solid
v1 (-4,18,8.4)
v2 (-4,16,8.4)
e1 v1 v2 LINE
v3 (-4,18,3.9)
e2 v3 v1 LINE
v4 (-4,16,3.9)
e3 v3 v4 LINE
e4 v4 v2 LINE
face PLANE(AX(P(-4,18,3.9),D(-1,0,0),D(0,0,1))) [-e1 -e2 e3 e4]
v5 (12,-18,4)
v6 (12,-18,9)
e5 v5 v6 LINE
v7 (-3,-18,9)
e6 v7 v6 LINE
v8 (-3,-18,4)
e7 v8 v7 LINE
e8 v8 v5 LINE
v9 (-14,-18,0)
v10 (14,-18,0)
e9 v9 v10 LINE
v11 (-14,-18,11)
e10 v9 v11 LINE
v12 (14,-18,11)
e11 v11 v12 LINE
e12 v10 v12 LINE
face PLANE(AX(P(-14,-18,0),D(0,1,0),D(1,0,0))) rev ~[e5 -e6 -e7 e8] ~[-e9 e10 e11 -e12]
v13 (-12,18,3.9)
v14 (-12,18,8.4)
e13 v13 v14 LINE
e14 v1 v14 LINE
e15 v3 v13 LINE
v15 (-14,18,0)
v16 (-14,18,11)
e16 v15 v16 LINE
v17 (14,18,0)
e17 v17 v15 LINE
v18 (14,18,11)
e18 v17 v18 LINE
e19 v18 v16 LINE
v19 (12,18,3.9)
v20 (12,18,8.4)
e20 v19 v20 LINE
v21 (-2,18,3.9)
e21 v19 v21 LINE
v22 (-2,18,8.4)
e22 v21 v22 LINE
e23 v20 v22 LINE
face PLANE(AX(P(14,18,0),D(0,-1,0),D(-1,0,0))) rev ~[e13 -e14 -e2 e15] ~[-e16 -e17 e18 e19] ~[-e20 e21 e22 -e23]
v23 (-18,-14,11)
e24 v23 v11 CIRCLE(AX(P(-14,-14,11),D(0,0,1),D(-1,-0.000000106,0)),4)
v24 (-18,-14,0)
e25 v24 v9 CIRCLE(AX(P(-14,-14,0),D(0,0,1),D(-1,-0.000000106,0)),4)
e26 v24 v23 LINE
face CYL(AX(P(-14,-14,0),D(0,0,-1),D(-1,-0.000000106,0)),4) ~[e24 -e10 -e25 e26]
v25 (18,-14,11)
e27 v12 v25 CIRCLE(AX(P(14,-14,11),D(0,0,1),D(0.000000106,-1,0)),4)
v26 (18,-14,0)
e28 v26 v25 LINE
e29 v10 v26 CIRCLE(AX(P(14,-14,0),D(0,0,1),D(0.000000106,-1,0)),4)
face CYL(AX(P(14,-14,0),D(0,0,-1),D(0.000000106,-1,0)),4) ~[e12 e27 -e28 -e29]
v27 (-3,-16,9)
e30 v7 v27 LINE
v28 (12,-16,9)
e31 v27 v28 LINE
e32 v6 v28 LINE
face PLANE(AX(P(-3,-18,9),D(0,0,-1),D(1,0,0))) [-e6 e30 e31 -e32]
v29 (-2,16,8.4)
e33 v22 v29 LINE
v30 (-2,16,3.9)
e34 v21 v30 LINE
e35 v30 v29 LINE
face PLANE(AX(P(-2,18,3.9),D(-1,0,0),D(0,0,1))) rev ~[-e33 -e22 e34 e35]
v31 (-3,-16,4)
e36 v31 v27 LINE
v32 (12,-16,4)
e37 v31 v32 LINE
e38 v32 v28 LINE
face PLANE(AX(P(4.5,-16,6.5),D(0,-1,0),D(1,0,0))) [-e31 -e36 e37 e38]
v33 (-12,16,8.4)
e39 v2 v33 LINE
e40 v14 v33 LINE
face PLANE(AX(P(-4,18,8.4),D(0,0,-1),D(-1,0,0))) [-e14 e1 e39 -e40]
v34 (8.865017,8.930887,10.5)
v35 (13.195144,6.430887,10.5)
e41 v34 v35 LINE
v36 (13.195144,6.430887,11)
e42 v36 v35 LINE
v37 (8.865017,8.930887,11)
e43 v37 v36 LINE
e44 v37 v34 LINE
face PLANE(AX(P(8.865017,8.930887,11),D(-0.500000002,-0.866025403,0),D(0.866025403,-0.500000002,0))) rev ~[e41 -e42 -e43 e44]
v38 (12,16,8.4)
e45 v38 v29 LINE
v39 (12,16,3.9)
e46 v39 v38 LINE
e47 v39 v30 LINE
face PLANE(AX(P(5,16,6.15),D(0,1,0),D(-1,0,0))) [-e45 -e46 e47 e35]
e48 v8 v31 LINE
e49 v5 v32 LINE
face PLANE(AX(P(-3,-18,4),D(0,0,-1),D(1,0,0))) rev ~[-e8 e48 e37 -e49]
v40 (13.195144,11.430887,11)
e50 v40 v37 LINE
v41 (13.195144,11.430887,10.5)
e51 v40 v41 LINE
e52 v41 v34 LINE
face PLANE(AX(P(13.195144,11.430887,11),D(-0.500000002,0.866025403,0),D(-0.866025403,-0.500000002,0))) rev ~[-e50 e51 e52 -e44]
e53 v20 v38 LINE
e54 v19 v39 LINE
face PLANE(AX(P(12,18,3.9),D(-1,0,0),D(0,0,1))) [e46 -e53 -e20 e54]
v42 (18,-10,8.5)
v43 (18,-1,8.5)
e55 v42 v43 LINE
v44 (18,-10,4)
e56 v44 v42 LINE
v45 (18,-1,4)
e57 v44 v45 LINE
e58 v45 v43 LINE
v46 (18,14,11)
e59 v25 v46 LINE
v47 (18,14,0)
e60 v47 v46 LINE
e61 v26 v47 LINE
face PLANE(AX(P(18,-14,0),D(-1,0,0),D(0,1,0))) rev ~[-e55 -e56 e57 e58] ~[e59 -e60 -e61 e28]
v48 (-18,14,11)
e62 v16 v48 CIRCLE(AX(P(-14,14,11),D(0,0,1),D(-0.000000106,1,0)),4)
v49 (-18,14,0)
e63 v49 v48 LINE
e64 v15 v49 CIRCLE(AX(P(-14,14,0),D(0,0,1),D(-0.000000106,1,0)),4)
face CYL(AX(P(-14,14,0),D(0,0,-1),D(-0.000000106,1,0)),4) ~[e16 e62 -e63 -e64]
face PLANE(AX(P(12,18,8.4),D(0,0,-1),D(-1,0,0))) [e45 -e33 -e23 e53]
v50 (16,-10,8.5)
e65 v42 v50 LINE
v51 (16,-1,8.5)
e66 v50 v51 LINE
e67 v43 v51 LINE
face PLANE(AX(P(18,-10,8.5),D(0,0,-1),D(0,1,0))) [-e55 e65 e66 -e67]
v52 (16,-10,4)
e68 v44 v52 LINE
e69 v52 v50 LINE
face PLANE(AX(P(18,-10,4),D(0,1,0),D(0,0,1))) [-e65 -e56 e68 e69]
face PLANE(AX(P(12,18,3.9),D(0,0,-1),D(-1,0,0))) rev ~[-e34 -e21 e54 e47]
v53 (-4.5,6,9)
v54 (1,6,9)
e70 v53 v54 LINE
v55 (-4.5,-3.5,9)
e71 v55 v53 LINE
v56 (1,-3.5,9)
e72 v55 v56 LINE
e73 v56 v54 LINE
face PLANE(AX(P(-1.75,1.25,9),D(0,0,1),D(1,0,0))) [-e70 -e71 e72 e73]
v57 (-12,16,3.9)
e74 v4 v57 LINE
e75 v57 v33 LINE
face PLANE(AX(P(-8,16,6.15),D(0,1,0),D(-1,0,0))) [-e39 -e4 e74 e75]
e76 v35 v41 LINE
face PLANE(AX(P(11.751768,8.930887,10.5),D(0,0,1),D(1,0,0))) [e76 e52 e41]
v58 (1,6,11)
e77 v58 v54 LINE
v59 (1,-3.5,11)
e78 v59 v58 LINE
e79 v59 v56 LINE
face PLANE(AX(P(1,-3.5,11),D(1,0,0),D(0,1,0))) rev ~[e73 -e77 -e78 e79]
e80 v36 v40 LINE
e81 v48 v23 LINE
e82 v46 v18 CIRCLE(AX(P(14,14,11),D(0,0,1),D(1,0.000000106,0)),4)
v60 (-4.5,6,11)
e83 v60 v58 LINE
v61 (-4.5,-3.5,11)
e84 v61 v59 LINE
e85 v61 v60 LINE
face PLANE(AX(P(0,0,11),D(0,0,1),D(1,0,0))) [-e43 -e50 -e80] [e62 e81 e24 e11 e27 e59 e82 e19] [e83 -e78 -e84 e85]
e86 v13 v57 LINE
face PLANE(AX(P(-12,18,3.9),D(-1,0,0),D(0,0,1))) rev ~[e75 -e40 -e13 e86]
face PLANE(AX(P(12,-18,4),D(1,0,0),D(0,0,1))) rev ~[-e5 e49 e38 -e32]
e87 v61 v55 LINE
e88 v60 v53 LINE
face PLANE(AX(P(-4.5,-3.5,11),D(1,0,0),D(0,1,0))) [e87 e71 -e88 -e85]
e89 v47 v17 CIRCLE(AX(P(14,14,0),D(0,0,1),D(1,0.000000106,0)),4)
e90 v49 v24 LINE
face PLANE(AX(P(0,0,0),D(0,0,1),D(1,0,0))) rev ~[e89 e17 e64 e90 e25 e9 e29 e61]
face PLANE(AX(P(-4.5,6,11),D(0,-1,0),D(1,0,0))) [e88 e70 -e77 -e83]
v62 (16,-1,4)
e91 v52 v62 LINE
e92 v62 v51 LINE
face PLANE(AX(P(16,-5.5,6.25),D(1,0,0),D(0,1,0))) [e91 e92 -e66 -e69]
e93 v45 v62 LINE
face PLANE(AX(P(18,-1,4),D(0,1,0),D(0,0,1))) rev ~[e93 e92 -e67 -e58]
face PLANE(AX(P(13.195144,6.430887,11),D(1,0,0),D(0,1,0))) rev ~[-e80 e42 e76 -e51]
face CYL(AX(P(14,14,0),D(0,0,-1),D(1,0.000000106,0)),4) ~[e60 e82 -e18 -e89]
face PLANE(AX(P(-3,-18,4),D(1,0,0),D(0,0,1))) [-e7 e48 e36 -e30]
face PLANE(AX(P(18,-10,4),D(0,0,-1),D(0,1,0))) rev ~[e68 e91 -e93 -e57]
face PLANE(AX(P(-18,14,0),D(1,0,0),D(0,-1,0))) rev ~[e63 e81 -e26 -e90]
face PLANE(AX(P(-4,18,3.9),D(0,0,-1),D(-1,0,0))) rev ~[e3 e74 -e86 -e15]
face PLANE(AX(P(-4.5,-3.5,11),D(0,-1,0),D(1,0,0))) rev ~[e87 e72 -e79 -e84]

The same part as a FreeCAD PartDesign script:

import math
import FreeCAD as App
import Part
import Sketcher
Q = App.Units.Quantity

doc = App.newDocument("Part")
body = doc.addObject("PartDesign::Body", "Body")

# Sketch on XY plane
sketch1 = body.newObject("Sketcher::SketchObject", "Sketch")
sketch1.AttachmentSupport = (doc.getObject("XY_Plane"), [""])
sketch1.MapMode = "FlatFace"
sketch1.addGeometry(Part.LineSegment(App.Vector(14, 18, 0), App.Vector(-14, 18, 0)), False)
sketch1.addGeometry(Part.ArcOfCircle(Part.Circle(App.Vector(-14, 14, 0), App.Vector(0, 0, 1), 4), math.radians(90.000006), math.radians(179.999994)), False)
sketch1.addGeometry(Part.LineSegment(App.Vector(-18, 14, 0), App.Vector(-18, -14, 0)), False)
sketch1.addGeometry(Part.ArcOfCircle(Part.Circle(App.Vector(-14, -14, 0), App.Vector(0, 0, 1), 4), math.radians(-179.999994), math.radians(-90.000006)), False)
sketch1.addGeometry(Part.LineSegment(App.Vector(-14, -18, 0), App.Vector(14, -18, 0)), False)
sketch1.addGeometry(Part.ArcOfCircle(Part.Circle(App.Vector(14, -14, 0), App.Vector(0, 0, 1), 4), math.radians(-89.999994), math.radians(-0.000006)), False)
sketch1.addGeometry(Part.LineSegment(App.Vector(18, -14, 0), App.Vector(18, 14, 0)), False)
sketch1.addGeometry(Part.ArcOfCircle(Part.Circle(App.Vector(14, 14, 0), App.Vector(0, 0, 1), 4), math.radians(0.000006), math.radians(89.999994)), False)
sketch1.addConstraint(Sketcher.Constraint("Tangent", 0, 2, 1, 1))
sketch1.addConstraint(Sketcher.Constraint("Tangent", 1, 2, 2, 1))
sketch1.addConstraint(Sketcher.Constraint("Tangent", 2, 2, 3, 1))
sketch1.addConstraint(Sketcher.Constraint("Tangent", 3, 2, 4, 1))
sketch1.addConstraint(Sketcher.Constraint("Tangent", 4, 2, 5, 1))
sketch1.addConstraint(Sketcher.Constraint("Tangent", 5, 2, 6, 1))
sketch1.addConstraint(Sketcher.Constraint("Tangent", 6, 2, 7, 1))
sketch1.addConstraint(Sketcher.Constraint("Tangent", 7, 2, 0, 1))
sketch1.addConstraint(Sketcher.Constraint("Horizontal", 0))
sketch1.addConstraint(Sketcher.Constraint("Vertical", 2))
sketch1.addConstraint(Sketcher.Constraint("Horizontal", 4))
sketch1.addConstraint(Sketcher.Constraint("Vertical", 6))
sketch1.addConstraint(Sketcher.Constraint("Equal", 1, 3))
sketch1.addConstraint(Sketcher.Constraint("Equal", 3, 5))
sketch1.addConstraint(Sketcher.Constraint("Equal", 5, 7))
sketch1.addConstraint(Sketcher.Constraint("Symmetric", 1, 3, 5, 3, -1, 1))
sketch1.addConstraint(Sketcher.Constraint("Equal", 4, 2))
sketch1.addConstraint(Sketcher.Constraint("Radius", 1, Q("4 mm")))
sketch1.addConstraint(Sketcher.Constraint("DistanceX", 0, 2, 0, 1, Q("28 mm")))
pad1 = body.newObject("PartDesign::Pad", "Pad")
pad1.Profile = sketch1
pad1.Length = 11

# Sketch on XZ plane
sketch2 = body.newObject("Sketcher::SketchObject", "Sketch001")
sketch2.AttachmentSupport = (doc.getObject("XZ_Plane"), [""])
sketch2.MapMode = "FlatFace"
sketch2.AttachmentOffset = App.Placement(App.Vector(0, 0, 18), App.Rotation())
sketch2.addGeometry(Part.LineSegment(App.Vector(-3, 9, 0), App.Vector(-3, 4, 0)), False)
sketch2.addGeometry(Part.LineSegment(App.Vector(-3, 4, 0), App.Vector(12, 4, 0)), False)
sketch2.addGeometry(Part.LineSegment(App.Vector(12, 4, 0), App.Vector(12, 9, 0)), False)
sketch2.addGeometry(Part.LineSegment(App.Vector(12, 9, 0), App.Vector(-3, 9, 0)), False)
sketch2.addConstraint(Sketcher.Constraint("Coincident", 0, 2, 1, 1))
sketch2.addConstraint(Sketcher.Constraint("Coincident", 1, 2, 2, 1))
sketch2.addConstraint(Sketcher.Constraint("Coincident", 2, 2, 3, 1))
sketch2.addConstraint(Sketcher.Constraint("Coincident", 3, 2, 0, 1))
sketch2.addConstraint(Sketcher.Constraint("Vertical", 0))
sketch2.addConstraint(Sketcher.Constraint("Horizontal", 1))
sketch2.addConstraint(Sketcher.Constraint("Vertical", 2))
sketch2.addConstraint(Sketcher.Constraint("Horizontal", 3))
sketch2.addConstraint(Sketcher.Constraint("DistanceX", 1, 1, 1, 2, Q("15 mm")))
sketch2.addConstraint(Sketcher.Constraint("DistanceY", 0, 2, 0, 1, Q("5 mm")))
sketch2.addConstraint(Sketcher.Constraint("DistanceX", 0, 2, -1, 1, Q("3 mm")))
sketch2.addConstraint(Sketcher.Constraint("DistanceY", -1, 1, 0, 2, Q("4 mm")))
pocket1 = body.newObject("PartDesign::Pocket", "Pocket")
pocket1.Profile = sketch2
pocket1.Length = 2

# Sketch on YZ plane
sketch3 = body.newObject("Sketcher::SketchObject", "Sketch002")
sketch3.AttachmentSupport = (doc.getObject("YZ_Plane"), [""])
sketch3.MapMode = "FlatFace"
sketch3.AttachmentOffset = App.Placement(App.Vector(0, 0, 18), App.Rotation())
sketch3.addGeometry(Part.LineSegment(App.Vector(-10, 8.5, 0), App.Vector(-10, 4, 0)), False)
sketch3.addGeometry(Part.LineSegment(App.Vector(-10, 4, 0), App.Vector(-1, 4, 0)), False)
sketch3.addGeometry(Part.LineSegment(App.Vector(-1, 4, 0), App.Vector(-1, 8.5, 0)), False)
sketch3.addGeometry(Part.LineSegment(App.Vector(-1, 8.5, 0), App.Vector(-10, 8.5, 0)), False)
sketch3.addConstraint(Sketcher.Constraint("Coincident", 0, 2, 1, 1))
sketch3.addConstraint(Sketcher.Constraint("Coincident", 1, 2, 2, 1))
sketch3.addConstraint(Sketcher.Constraint("Coincident", 2, 2, 3, 1))
sketch3.addConstraint(Sketcher.Constraint("Coincident", 3, 2, 0, 1))
sketch3.addConstraint(Sketcher.Constraint("Vertical", 0))
sketch3.addConstraint(Sketcher.Constraint("Horizontal", 1))
sketch3.addConstraint(Sketcher.Constraint("Vertical", 2))
sketch3.addConstraint(Sketcher.Constraint("Horizontal", 3))
sketch3.addConstraint(Sketcher.Constraint("DistanceX", 1, 1, 1, 2, Q("9 mm")))
sketch3.addConstraint(Sketcher.Constraint("DistanceY", 0, 2, 0, 1, Q("4.5 mm")))
sketch3.addConstraint(Sketcher.Constraint("DistanceX", 0, 2, -1, 1, Q("10 mm")))
sketch3.addConstraint(Sketcher.Constraint("DistanceY", -1, 1, 0, 2, Q("4 mm")))
pocket2 = body.newObject("PartDesign::Pocket", "Pocket001")
pocket2.Profile = sketch3
pocket2.Length = 2

# Sketch on XZ plane
sketch4 = body.newObject("Sketcher::SketchObject", "Sketch003")
sketch4.AttachmentSupport = (doc.getObject("XZ_Plane"), [""])
sketch4.MapMode = "FlatFace"
sketch4.AttachmentOffset = App.Placement(App.Vector(0, 0, -18), App.Rotation())
sketch4.addGeometry(Part.LineSegment(App.Vector(12, 8.4, 0), App.Vector(12, 3.9, 0)), False)
sketch4.addGeometry(Part.LineSegment(App.Vector(12, 3.9, 0), App.Vector(-2, 3.9, 0)), False)
sketch4.addGeometry(Part.LineSegment(App.Vector(-2, 3.9, 0), App.Vector(-2, 8.4, 0)), False)
sketch4.addGeometry(Part.LineSegment(App.Vector(-2, 8.4, 0), App.Vector(12, 8.4, 0)), False)
sketch4.addGeometry(Part.LineSegment(App.Vector(-4, 8.4, 0), App.Vector(-4, 3.9, 0)), False)
sketch4.addGeometry(Part.LineSegment(App.Vector(-4, 3.9, 0), App.Vector(-12, 3.9, 0)), False)
sketch4.addGeometry(Part.LineSegment(App.Vector(-12, 3.9, 0), App.Vector(-12, 8.4, 0)), False)
sketch4.addGeometry(Part.LineSegment(App.Vector(-12, 8.4, 0), App.Vector(-4, 8.4, 0)), False)
sketch4.addConstraint(Sketcher.Constraint("Coincident", 0, 2, 1, 1))
sketch4.addConstraint(Sketcher.Constraint("Coincident", 1, 2, 2, 1))
sketch4.addConstraint(Sketcher.Constraint("Coincident", 2, 2, 3, 1))
sketch4.addConstraint(Sketcher.Constraint("Coincident", 3, 2, 0, 1))
sketch4.addConstraint(Sketcher.Constraint("Coincident", 4, 2, 5, 1))
sketch4.addConstraint(Sketcher.Constraint("Coincident", 5, 2, 6, 1))
sketch4.addConstraint(Sketcher.Constraint("Coincident", 6, 2, 7, 1))
sketch4.addConstraint(Sketcher.Constraint("Coincident", 7, 2, 4, 1))
sketch4.addConstraint(Sketcher.Constraint("Vertical", 0))
sketch4.addConstraint(Sketcher.Constraint("Horizontal", 1))
sketch4.addConstraint(Sketcher.Constraint("Vertical", 2))
sketch4.addConstraint(Sketcher.Constraint("Horizontal", 3))
sketch4.addConstraint(Sketcher.Constraint("Vertical", 4))
sketch4.addConstraint(Sketcher.Constraint("Horizontal", 5))
sketch4.addConstraint(Sketcher.Constraint("Vertical", 6))
sketch4.addConstraint(Sketcher.Constraint("Horizontal", 7))
sketch4.addConstraint(Sketcher.Constraint("Symmetric", 0, 2, 5, 2, -2))
sketch4.addConstraint(Sketcher.Constraint("Horizontal", 3, 2, 6, 2))
sketch4.addConstraint(Sketcher.Constraint("DistanceX", 1, 2, 1, 1, Q("14 mm")))
sketch4.addConstraint(Sketcher.Constraint("DistanceX", 5, 2, 5, 1, Q("8 mm")))
sketch4.addConstraint(Sketcher.Constraint("DistanceY", 0, 2, 0, 1, Q("4.5 mm")))
sketch4.addConstraint(Sketcher.Constraint("DistanceX", -1, 1, 0, 2, Q("12 mm")))
sketch4.addConstraint(Sketcher.Constraint("DistanceY", -1, 1, 0, 2, Q("3.9 mm")))
pocket3 = body.newObject("PartDesign::Pocket", "Pocket002")
pocket3.Profile = sketch4
pocket3.Length = 2
pocket3.Reversed = True

# Sketch on XY plane
sketch5 = body.newObject("Sketcher::SketchObject", "Sketch004")
sketch5.AttachmentSupport = (doc.getObject("XY_Plane"), [""])
sketch5.MapMode = "FlatFace"
sketch5.AttachmentOffset = App.Placement(App.Vector(0, 0, 11), App.Rotation())
sketch5.addGeometry(Part.LineSegment(App.Vector(-4.5, 6, 0), App.Vector(-4.5, -3.5, 0)), False)
sketch5.addGeometry(Part.LineSegment(App.Vector(-4.5, -3.5, 0), App.Vector(1, -3.5, 0)), False)
sketch5.addGeometry(Part.LineSegment(App.Vector(1, -3.5, 0), App.Vector(1, 6, 0)), False)
sketch5.addGeometry(Part.LineSegment(App.Vector(1, 6, 0), App.Vector(-4.5, 6, 0)), False)
sketch5.addConstraint(Sketcher.Constraint("Coincident", 0, 2, 1, 1))
sketch5.addConstraint(Sketcher.Constraint("Coincident", 1, 2, 2, 1))
sketch5.addConstraint(Sketcher.Constraint("Coincident", 2, 2, 3, 1))
sketch5.addConstraint(Sketcher.Constraint("Coincident", 3, 2, 0, 1))
sketch5.addConstraint(Sketcher.Constraint("Vertical", 0))
sketch5.addConstraint(Sketcher.Constraint("Horizontal", 1))
sketch5.addConstraint(Sketcher.Constraint("Vertical", 2))
sketch5.addConstraint(Sketcher.Constraint("Horizontal", 3))
sketch5.addConstraint(Sketcher.Constraint("DistanceX", 1, 1, 1, 2, Q("5.5 mm")))
sketch5.addConstraint(Sketcher.Constraint("DistanceY", 0, 2, 0, 1, Q("9.5 mm")))
sketch5.addConstraint(Sketcher.Constraint("DistanceX", -1, 1, 1, 2, Q("1 mm")))
sketch5.addConstraint(Sketcher.Constraint("DistanceY", -1, 1, 2, 2, Q("6 mm")))
pocket4 = body.newObject("PartDesign::Pocket", "Pocket003")
pocket4.Profile = sketch5
pocket4.Length = 2

# Sketch on XY plane
sketch6 = body.newObject("Sketcher::SketchObject", "Sketch005")
sketch6.AttachmentSupport = (doc.getObject("XY_Plane"), [""])
sketch6.MapMode = "FlatFace"
sketch6.AttachmentOffset = App.Placement(App.Vector(0, 0, 11), App.Rotation())
sketch6.addGeometry(Part.LineSegment(App.Vector(13.195144, 11.430887, 0), App.Vector(8.865017, 8.930887, 0)), False)
sketch6.addGeometry(Part.LineSegment(App.Vector(8.865017, 8.930887, 0), App.Vector(13.195144, 6.430887, 0)), False)
sketch6.addGeometry(Part.LineSegment(App.Vector(13.195144, 6.430887, 0), App.Vector(13.195144, 11.430887, 0)), False)
sketch6.addConstraint(Sketcher.Constraint("Coincident", 0, 2, 1, 1))
sketch6.addConstraint(Sketcher.Constraint("Coincident", 1, 2, 2, 1))
sketch6.addConstraint(Sketcher.Constraint("Coincident", 2, 2, 0, 1))
sketch6.addConstraint(Sketcher.Constraint("Vertical", 2))
sketch6.addConstraint(Sketcher.Constraint("Equal", 0, 1))
sketch6.addConstraint(Sketcher.Constraint("DistanceY", 2, 1, 2, 2, Q("5 mm")))
sketch6.addConstraint(Sketcher.Constraint("Angle", 0, Q("-150 deg")))
sketch6.addConstraint(Sketcher.Constraint("DistanceX", -1, 1, 0, 2, Q("8.865017 mm")))
sketch6.addConstraint(Sketcher.Constraint("DistanceY", -1, 1, 0, 2, Q("8.930887 mm")))
pocket5 = body.newObject("PartDesign::Pocket", "Pocket004")
pocket5.Profile = sketch6
pocket5.Length = 0.5

doc.recompute()
